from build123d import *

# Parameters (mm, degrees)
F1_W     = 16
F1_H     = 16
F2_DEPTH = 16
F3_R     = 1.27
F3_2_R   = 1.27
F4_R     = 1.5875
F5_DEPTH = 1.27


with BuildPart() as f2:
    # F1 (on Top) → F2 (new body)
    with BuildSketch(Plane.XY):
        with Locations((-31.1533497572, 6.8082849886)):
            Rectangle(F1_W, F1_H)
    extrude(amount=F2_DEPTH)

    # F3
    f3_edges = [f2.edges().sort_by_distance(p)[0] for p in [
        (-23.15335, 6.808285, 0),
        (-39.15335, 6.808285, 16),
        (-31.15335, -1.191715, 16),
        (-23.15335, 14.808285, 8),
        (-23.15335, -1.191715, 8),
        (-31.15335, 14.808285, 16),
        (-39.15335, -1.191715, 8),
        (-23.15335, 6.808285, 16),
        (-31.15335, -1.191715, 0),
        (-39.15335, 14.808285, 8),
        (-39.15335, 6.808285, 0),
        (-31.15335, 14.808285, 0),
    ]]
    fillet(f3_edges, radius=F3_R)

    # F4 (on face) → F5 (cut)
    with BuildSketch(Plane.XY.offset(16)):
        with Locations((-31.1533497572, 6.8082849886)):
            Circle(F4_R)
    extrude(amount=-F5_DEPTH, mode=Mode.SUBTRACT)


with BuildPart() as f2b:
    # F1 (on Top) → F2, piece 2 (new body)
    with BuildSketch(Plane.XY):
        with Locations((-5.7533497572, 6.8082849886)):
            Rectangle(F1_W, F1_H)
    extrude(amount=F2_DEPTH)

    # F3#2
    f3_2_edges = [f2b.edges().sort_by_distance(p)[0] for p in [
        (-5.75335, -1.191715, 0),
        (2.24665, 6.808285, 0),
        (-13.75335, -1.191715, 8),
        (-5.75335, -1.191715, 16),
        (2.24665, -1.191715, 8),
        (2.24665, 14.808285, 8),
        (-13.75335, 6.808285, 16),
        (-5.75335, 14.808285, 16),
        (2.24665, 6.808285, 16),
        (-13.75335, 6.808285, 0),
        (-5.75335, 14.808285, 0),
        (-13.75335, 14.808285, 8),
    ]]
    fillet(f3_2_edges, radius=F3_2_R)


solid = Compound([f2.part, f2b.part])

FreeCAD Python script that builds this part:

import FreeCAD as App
import Part
import Sketcher

V = App.Vector
Q = App.Units.Quantity


def add_polygon(sketch, points):
    """Adds a closed chain of lines whose ends are joined by coincident constraints."""
    first, n = sketch.GeometryCount, len(points)
    for a, b in zip(points, points[1:] + points[:1]):
        sketch.addGeometry(Part.LineSegment(App.Vector(*a, 0), App.Vector(*b, 0)), False)
    for i in range(n):
        sketch.addConstraint(Sketcher.Constraint("Coincident", first + i, 2, first + (i + 1) % n, 1))

doc = App.newDocument("Part")
body = doc.addObject("PartDesign::Body", "Body")

sketch1 = doc.addObject("Sketcher::SketchObject", "Sketch")
body.addObject(sketch1)
sketch1.AttachmentSupport = (doc.XY_Plane, [""])
sketch1.MapMode = "FlatFace"
add_polygon(sketch1, [(-39.15335, 14.808285), (-39.15335, -1.191715), (-23.15335, -1.191715), (-23.15335, 14.808285)])
sketch1.addConstraint(Sketcher.Constraint("Vertical", 0))
sketch1.addConstraint(Sketcher.Constraint("Horizontal", 1))
sketch1.addConstraint(Sketcher.Constraint("Vertical", 2))
sketch1.addConstraint(Sketcher.Constraint("Horizontal", 3))
sketch1.addConstraint(Sketcher.Constraint("Equal", 3, 0))
sketch1.addConstraint(Sketcher.Constraint("DistanceX", 1, 1, 1, 2, 16.0))
sketch1.addConstraint(Sketcher.Constraint("DistanceX", 0, 2, -1, 1, 39.15335))
sketch1.addConstraint(Sketcher.Constraint("DistanceY", 0, 2, -1, 1, 1.191715))
pad1 = doc.addObject("PartDesign::Pad", "Pad")
body.addObject(pad1)
pad1.Profile = sketch1
pad1.Length = 16
doc.recompute()

fillet = doc.addObject("PartDesign::Fillet", "Fillet")
body.addObject(fillet)
fillet.Base = (pad1, ["Edge1"])
fillet.UseAllEdges = True
fillet.Radius = Q("0.05 in")

sketch2 = doc.addObject("Sketcher::SketchObject", "Sketch001")
body.addObject(sketch2)
sketch2.AttachmentSupport = (doc.XY_Plane, [""])
sketch2.MapMode = "FlatFace"
sketch2.AttachmentOffset = App.Placement(V(0, 0, 16), App.Rotation())
sketch2.addGeometry(Part.Circle(V(-31.15335, 6.808285, 0), V(0, 0, 1), 1.5875), False)
sketch2.addConstraint(Sketcher.Constraint("Diameter", 0, Q("0.125 in")))
sketch2.addConstraint(Sketcher.Constraint("DistanceX", 0, 3, -1, 1, 31.15335))
sketch2.addConstraint(Sketcher.Constraint("DistanceY", -1, 1, 0, 3, 6.808285))
pocket1 = doc.addObject("PartDesign::Pocket", "Pocket")
body.addObject(pocket1)
pocket1.Profile = sketch2
pocket1.Length = Q("0.05 in")
body2 = doc.addObject("PartDesign::Body", "Body001")

sketch3 = doc.addObject("Sketcher::SketchObject", "Sketch002")
body2.addObject(sketch3)
sketch3.AttachmentSupport = (doc.getObject("XY_Plane001"), [""])
sketch3.MapMode = "FlatFace"
add_polygon(sketch3, [(-13.75335, 14.808285), (-13.75335, -1.191715), (2.24665, -1.191715), (2.24665, 14.808285)])
sketch3.addConstraint(Sketcher.Constraint("Vertical", 0))
sketch3.addConstraint(Sketcher.Constraint("Horizontal", 1))
sketch3.addConstraint(Sketcher.Constraint("Vertical", 2))
sketch3.addConstraint(Sketcher.Constraint("Horizontal", 3))
sketch3.addConstraint(Sketcher.Constraint("Equal", 3, 0))
sketch3.addConstraint(Sketcher.Constraint("DistanceX", 1, 1, 1, 2, 16.0))
sketch3.addConstraint(Sketcher.Constraint("DistanceX", 0, 2, -1, 1, 13.75335))
sketch3.addConstraint(Sketcher.Constraint("DistanceY", 0, 2, -1, 1, 1.191715))
pad2 = doc.addObject("PartDesign::Pad", "Pad001")
body2.addObject(pad2)
pad2.Profile = sketch3
pad2.Length = 16
doc.recompute()

fillet2 = doc.addObject("PartDesign::Fillet", "Fillet001")
body2.addObject(fillet2)
fillet2.Base = (pad2, ["Edge1"])
fillet2.UseAllEdges = True
fillet2.Radius = Q("0.05 in")

doc.recompute()
